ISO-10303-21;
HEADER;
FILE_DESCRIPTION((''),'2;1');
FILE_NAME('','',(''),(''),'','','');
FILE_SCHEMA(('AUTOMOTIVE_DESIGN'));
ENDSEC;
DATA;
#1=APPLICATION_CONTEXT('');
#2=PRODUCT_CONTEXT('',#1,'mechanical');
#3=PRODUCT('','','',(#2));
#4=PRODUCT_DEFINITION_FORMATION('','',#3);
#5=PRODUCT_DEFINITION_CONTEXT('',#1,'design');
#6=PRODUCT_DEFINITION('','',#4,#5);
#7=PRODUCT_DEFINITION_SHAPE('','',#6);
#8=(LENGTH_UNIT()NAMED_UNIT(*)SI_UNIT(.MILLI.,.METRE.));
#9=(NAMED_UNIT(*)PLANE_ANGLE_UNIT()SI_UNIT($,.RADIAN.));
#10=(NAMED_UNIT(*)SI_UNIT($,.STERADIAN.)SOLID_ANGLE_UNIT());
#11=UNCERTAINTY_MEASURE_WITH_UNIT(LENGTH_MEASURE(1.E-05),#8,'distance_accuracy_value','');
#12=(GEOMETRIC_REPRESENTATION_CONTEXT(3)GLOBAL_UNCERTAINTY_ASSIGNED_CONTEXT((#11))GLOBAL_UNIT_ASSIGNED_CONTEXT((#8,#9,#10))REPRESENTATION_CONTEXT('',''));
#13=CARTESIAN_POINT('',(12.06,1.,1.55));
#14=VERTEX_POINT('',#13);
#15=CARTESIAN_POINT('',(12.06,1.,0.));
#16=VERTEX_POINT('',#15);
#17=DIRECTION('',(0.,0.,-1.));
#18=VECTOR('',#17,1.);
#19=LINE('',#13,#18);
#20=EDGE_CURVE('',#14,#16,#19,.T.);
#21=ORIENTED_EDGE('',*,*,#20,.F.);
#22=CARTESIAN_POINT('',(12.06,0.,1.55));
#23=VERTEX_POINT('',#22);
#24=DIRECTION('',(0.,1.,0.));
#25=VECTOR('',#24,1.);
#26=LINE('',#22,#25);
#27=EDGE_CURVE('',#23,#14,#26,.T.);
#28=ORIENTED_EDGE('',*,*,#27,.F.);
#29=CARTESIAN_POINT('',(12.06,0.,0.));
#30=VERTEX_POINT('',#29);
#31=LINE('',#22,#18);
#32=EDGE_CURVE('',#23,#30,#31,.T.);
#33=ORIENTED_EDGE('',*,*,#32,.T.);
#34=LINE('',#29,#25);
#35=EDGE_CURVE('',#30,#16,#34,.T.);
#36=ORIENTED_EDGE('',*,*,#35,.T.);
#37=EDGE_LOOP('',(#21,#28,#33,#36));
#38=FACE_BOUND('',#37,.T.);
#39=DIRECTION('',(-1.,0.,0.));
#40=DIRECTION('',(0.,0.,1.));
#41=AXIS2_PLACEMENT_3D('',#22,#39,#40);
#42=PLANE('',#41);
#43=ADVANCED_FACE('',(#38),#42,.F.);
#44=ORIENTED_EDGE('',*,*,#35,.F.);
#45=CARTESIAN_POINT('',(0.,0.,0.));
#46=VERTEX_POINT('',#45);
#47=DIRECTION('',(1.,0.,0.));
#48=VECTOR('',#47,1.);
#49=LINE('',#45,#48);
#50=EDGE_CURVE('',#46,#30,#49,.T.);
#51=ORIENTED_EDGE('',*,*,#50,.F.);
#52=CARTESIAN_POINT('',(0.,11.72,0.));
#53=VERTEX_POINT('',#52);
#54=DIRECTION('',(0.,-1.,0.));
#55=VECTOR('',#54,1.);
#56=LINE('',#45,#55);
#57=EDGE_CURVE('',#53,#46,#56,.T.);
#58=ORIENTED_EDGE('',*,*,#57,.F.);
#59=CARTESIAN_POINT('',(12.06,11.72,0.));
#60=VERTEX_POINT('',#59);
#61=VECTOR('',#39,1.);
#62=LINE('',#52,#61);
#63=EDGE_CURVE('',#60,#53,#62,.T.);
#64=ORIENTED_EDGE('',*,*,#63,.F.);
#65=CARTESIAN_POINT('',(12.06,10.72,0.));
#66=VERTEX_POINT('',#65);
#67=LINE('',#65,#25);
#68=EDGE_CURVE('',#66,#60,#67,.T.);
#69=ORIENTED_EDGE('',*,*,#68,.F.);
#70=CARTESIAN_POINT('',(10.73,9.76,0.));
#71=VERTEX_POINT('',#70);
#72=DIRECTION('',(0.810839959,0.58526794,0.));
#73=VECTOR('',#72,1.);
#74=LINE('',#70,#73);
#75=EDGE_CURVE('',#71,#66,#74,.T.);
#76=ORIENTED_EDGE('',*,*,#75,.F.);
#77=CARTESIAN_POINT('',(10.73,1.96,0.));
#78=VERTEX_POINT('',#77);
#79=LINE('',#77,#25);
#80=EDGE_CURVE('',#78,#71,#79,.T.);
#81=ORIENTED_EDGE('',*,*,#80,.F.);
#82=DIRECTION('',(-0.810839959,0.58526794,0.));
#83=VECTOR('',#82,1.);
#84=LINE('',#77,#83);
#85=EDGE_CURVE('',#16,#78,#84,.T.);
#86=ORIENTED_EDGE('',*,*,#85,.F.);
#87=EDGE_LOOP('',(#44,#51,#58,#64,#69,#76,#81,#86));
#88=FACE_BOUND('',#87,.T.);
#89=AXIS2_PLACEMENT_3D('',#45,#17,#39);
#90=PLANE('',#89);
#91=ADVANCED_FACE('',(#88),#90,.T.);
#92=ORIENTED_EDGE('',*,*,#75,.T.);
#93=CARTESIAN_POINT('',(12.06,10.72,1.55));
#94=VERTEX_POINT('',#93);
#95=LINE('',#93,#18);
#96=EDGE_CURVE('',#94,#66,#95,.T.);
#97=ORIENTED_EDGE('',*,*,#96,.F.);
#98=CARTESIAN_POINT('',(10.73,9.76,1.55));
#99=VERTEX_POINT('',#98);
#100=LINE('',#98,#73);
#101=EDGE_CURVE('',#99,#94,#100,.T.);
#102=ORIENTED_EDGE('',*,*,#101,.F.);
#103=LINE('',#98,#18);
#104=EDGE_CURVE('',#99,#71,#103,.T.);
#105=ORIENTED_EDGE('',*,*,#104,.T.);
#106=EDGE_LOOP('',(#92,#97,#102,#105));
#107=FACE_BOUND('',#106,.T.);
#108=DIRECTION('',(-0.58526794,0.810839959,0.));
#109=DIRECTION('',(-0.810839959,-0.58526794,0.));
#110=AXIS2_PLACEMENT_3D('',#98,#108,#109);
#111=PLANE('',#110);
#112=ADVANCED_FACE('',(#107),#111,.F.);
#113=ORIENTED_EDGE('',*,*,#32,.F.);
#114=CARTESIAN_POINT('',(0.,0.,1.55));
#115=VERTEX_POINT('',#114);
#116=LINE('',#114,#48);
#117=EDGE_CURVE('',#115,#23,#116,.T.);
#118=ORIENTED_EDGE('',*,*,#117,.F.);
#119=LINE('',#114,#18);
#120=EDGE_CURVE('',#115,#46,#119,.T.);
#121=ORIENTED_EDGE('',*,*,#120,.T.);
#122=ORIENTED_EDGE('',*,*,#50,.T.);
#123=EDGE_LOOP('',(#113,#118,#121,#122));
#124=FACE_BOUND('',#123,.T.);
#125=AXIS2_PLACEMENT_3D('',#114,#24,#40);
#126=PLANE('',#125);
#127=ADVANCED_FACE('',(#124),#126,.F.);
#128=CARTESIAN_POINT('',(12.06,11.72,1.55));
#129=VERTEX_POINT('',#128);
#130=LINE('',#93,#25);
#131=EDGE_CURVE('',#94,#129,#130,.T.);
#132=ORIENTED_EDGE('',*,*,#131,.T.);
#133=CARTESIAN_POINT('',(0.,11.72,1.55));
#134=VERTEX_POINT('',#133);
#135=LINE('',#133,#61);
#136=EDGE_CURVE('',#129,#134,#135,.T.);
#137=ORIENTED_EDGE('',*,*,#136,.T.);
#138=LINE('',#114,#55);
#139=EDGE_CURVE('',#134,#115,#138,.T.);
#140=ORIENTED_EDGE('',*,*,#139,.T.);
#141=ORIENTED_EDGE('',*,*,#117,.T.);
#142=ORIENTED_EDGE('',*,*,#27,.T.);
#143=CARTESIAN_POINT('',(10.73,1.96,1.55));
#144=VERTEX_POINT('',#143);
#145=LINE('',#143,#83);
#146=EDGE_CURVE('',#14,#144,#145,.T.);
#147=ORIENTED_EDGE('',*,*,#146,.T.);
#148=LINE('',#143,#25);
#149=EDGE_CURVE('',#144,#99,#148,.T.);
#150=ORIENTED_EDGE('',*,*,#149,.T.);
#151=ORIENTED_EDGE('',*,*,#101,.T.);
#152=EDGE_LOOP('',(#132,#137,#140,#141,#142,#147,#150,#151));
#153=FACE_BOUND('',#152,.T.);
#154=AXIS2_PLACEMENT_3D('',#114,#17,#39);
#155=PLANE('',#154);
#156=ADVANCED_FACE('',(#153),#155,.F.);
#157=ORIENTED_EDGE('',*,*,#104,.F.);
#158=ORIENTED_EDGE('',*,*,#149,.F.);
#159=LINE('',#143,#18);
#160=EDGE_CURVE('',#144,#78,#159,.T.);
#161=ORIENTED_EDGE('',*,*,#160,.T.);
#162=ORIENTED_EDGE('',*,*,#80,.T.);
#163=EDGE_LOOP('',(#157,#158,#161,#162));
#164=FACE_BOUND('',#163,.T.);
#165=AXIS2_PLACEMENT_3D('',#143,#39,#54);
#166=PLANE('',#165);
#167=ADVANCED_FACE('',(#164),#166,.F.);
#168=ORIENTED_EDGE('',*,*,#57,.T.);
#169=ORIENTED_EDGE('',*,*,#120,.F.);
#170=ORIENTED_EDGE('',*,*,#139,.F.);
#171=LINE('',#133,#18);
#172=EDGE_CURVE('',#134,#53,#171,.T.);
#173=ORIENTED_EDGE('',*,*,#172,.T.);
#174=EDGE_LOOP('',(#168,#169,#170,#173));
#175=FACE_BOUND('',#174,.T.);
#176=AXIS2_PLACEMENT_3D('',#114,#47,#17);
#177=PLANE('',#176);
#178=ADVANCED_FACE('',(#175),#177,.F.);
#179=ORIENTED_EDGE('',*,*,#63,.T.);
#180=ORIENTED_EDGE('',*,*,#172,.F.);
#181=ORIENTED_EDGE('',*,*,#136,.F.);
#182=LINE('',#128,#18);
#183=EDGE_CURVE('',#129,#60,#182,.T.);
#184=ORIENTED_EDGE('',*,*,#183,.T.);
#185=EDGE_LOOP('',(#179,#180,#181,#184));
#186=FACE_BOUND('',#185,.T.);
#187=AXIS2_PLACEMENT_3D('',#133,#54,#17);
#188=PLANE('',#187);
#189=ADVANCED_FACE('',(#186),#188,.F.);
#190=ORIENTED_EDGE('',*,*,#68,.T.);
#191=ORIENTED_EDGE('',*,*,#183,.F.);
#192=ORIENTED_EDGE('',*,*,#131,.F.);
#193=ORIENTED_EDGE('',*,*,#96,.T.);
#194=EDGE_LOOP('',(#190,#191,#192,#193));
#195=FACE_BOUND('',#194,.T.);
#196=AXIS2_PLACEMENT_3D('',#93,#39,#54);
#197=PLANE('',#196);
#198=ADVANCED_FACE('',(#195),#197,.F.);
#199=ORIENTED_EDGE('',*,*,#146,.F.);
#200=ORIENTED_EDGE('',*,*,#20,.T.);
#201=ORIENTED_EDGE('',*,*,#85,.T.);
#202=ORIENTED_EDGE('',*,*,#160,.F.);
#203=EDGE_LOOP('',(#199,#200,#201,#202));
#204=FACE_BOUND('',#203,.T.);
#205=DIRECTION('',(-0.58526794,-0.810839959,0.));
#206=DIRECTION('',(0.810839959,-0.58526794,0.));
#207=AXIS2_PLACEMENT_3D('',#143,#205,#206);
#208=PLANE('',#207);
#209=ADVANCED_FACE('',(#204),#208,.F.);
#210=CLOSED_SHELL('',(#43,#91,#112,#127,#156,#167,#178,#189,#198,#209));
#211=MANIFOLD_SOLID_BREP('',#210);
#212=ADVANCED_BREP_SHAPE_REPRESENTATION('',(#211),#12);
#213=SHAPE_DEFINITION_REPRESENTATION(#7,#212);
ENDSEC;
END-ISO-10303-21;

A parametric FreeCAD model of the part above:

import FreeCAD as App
import Part
import Sketcher

V = App.Vector


def add_polygon(sketch, points):
    """Adds a closed chain of lines whose ends are joined by coincident constraints."""
    first, n = sketch.GeometryCount, len(points)
    for a, b in zip(points, points[1:] + points[:1]):
        sketch.addGeometry(Part.LineSegment(App.Vector(*a, 0), App.Vector(*b, 0)), False)
    for i in range(n):
        sketch.addConstraint(Sketcher.Constraint("Coincident", first + i, 2, first + (i + 1) % n, 1))

doc = App.newDocument("Part")
params = doc.addObject("Spreadsheet::Sheet", "Params")
for row, (alias, value) in enumerate([
    ("sketch1_height", "1 mm"),
    ("sketch1_height2", "7.8 mm"),
    ("sketch1_width", "12.06 mm"),
    ("sketch1_height3", "11.72 mm"),
    ("pad1_length", "1.55 mm"),
], start=1):
    params.set(f"A{row}", alias)
    params.set(f"B{row}", "=" + value)
    params.setAlias(f"B{row}", alias)

body = doc.addObject("PartDesign::Body", "Body")

# Sketch on XY plane
sketch1 = body.newObject("Sketcher::SketchObject", "Sketch")
sketch1.AttachmentSupport = (doc.getObject("XY_Plane"), [""])
sketch1.MapMode = "FlatFace"
add_polygon(sketch1, [(10.7, 9.8), (12.1, 10.7), (12.1, 11.7), (0, 11.7), (0, 0), (12.1, 0), (12.1, 1), (10.7, 2)])  # lines 0-7
sketch1.addConstraint([
    Sketcher.Constraint("Vertical", 1),
    Sketcher.Constraint("Horizontal", 2),
    Sketcher.Constraint("Vertical", 3),
    Sketcher.Constraint("Horizontal", 4),
    Sketcher.Constraint("Vertical", 5),
    Sketcher.Constraint("Vertical", 7),
    Sketcher.Constraint("Coincident", 3, 2, -1, 1),
    Sketcher.Constraint("Vertical", 1, 2, 4, 2),
    Sketcher.Constraint("Equal", 1, 5),
    Sketcher.Constraint("Equal", 0, 6),
    Sketcher.Constraint("DistanceY", 1, 1, 1, 2, 1.0),
    Sketcher.Constraint("DistanceY", 7, 1, 7, 2, 7.8),
    Sketcher.Constraint("DistanceX", 2, 2, 2, 1, 12.06),
    Sketcher.Constraint("DistanceY", 3, 2, 3, 1, 11.72),
    Sketcher.Constraint("DistanceX", -1, 1, 6, 2, 10.73),
])
sketch1.setExpression("Constraints[18]", "Params.sketch1_height")
sketch1.setExpression("Constraints[19]", "Params.sketch1_height2")
sketch1.setExpression("Constraints[20]", "Params.sketch1_width")
sketch1.setExpression("Constraints[21]", "Params.sketch1_height3")
pad1 = body.newObject("PartDesign::Pad", "Pad")
pad1.Profile = sketch1
pad1.setExpression("Length", "Params.pad1_length")

doc.recompute()
